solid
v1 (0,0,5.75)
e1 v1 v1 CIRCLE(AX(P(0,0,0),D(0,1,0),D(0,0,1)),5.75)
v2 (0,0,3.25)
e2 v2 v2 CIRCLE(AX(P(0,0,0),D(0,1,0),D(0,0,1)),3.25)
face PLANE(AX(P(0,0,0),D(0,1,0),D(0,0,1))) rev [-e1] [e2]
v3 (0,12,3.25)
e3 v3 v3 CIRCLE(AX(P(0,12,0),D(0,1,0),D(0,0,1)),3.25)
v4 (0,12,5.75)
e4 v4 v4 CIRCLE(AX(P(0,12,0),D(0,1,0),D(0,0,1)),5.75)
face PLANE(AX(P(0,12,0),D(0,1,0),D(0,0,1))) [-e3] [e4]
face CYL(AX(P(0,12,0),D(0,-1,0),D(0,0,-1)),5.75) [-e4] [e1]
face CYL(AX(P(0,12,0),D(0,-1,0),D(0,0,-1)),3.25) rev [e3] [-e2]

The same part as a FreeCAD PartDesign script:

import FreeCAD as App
import Part
import Sketcher
Q = App.Units.Quantity

doc = App.newDocument("Part")
body = doc.addObject("PartDesign::Body", "Body")

# Sketch on XZ plane
sketch1 = body.newObject("Sketcher::SketchObject", "Sketch")
sketch1.AttachmentSupport = (doc.getObject("XZ_Plane"), [""])
sketch1.MapMode = "FlatFace"
sketch1.addGeometry([
    Part.Circle(App.Vector(0, 0, 0), App.Vector(0, 0, 1), 5.8),
    Part.Circle(App.Vector(0, 0, 0), App.Vector(0, 0, 1), 3.2),
], False)
sketch1.addConstraint([
    Sketcher.Constraint("Coincident", 0, 3, -1, 1),
    Sketcher.Constraint("Coincident", 1, 3, -1, 1),
    Sketcher.Constraint("Diameter", 0, Q("11.5 mm")),
    Sketcher.Constraint("Diameter", 1, Q("6.5 mm")),
])
pad1 = body.newObject("PartDesign::Pad", "Pad")
pad1.Profile = sketch1
pad1.Length = 12
pad1.Reversed = True

doc.recompute()
